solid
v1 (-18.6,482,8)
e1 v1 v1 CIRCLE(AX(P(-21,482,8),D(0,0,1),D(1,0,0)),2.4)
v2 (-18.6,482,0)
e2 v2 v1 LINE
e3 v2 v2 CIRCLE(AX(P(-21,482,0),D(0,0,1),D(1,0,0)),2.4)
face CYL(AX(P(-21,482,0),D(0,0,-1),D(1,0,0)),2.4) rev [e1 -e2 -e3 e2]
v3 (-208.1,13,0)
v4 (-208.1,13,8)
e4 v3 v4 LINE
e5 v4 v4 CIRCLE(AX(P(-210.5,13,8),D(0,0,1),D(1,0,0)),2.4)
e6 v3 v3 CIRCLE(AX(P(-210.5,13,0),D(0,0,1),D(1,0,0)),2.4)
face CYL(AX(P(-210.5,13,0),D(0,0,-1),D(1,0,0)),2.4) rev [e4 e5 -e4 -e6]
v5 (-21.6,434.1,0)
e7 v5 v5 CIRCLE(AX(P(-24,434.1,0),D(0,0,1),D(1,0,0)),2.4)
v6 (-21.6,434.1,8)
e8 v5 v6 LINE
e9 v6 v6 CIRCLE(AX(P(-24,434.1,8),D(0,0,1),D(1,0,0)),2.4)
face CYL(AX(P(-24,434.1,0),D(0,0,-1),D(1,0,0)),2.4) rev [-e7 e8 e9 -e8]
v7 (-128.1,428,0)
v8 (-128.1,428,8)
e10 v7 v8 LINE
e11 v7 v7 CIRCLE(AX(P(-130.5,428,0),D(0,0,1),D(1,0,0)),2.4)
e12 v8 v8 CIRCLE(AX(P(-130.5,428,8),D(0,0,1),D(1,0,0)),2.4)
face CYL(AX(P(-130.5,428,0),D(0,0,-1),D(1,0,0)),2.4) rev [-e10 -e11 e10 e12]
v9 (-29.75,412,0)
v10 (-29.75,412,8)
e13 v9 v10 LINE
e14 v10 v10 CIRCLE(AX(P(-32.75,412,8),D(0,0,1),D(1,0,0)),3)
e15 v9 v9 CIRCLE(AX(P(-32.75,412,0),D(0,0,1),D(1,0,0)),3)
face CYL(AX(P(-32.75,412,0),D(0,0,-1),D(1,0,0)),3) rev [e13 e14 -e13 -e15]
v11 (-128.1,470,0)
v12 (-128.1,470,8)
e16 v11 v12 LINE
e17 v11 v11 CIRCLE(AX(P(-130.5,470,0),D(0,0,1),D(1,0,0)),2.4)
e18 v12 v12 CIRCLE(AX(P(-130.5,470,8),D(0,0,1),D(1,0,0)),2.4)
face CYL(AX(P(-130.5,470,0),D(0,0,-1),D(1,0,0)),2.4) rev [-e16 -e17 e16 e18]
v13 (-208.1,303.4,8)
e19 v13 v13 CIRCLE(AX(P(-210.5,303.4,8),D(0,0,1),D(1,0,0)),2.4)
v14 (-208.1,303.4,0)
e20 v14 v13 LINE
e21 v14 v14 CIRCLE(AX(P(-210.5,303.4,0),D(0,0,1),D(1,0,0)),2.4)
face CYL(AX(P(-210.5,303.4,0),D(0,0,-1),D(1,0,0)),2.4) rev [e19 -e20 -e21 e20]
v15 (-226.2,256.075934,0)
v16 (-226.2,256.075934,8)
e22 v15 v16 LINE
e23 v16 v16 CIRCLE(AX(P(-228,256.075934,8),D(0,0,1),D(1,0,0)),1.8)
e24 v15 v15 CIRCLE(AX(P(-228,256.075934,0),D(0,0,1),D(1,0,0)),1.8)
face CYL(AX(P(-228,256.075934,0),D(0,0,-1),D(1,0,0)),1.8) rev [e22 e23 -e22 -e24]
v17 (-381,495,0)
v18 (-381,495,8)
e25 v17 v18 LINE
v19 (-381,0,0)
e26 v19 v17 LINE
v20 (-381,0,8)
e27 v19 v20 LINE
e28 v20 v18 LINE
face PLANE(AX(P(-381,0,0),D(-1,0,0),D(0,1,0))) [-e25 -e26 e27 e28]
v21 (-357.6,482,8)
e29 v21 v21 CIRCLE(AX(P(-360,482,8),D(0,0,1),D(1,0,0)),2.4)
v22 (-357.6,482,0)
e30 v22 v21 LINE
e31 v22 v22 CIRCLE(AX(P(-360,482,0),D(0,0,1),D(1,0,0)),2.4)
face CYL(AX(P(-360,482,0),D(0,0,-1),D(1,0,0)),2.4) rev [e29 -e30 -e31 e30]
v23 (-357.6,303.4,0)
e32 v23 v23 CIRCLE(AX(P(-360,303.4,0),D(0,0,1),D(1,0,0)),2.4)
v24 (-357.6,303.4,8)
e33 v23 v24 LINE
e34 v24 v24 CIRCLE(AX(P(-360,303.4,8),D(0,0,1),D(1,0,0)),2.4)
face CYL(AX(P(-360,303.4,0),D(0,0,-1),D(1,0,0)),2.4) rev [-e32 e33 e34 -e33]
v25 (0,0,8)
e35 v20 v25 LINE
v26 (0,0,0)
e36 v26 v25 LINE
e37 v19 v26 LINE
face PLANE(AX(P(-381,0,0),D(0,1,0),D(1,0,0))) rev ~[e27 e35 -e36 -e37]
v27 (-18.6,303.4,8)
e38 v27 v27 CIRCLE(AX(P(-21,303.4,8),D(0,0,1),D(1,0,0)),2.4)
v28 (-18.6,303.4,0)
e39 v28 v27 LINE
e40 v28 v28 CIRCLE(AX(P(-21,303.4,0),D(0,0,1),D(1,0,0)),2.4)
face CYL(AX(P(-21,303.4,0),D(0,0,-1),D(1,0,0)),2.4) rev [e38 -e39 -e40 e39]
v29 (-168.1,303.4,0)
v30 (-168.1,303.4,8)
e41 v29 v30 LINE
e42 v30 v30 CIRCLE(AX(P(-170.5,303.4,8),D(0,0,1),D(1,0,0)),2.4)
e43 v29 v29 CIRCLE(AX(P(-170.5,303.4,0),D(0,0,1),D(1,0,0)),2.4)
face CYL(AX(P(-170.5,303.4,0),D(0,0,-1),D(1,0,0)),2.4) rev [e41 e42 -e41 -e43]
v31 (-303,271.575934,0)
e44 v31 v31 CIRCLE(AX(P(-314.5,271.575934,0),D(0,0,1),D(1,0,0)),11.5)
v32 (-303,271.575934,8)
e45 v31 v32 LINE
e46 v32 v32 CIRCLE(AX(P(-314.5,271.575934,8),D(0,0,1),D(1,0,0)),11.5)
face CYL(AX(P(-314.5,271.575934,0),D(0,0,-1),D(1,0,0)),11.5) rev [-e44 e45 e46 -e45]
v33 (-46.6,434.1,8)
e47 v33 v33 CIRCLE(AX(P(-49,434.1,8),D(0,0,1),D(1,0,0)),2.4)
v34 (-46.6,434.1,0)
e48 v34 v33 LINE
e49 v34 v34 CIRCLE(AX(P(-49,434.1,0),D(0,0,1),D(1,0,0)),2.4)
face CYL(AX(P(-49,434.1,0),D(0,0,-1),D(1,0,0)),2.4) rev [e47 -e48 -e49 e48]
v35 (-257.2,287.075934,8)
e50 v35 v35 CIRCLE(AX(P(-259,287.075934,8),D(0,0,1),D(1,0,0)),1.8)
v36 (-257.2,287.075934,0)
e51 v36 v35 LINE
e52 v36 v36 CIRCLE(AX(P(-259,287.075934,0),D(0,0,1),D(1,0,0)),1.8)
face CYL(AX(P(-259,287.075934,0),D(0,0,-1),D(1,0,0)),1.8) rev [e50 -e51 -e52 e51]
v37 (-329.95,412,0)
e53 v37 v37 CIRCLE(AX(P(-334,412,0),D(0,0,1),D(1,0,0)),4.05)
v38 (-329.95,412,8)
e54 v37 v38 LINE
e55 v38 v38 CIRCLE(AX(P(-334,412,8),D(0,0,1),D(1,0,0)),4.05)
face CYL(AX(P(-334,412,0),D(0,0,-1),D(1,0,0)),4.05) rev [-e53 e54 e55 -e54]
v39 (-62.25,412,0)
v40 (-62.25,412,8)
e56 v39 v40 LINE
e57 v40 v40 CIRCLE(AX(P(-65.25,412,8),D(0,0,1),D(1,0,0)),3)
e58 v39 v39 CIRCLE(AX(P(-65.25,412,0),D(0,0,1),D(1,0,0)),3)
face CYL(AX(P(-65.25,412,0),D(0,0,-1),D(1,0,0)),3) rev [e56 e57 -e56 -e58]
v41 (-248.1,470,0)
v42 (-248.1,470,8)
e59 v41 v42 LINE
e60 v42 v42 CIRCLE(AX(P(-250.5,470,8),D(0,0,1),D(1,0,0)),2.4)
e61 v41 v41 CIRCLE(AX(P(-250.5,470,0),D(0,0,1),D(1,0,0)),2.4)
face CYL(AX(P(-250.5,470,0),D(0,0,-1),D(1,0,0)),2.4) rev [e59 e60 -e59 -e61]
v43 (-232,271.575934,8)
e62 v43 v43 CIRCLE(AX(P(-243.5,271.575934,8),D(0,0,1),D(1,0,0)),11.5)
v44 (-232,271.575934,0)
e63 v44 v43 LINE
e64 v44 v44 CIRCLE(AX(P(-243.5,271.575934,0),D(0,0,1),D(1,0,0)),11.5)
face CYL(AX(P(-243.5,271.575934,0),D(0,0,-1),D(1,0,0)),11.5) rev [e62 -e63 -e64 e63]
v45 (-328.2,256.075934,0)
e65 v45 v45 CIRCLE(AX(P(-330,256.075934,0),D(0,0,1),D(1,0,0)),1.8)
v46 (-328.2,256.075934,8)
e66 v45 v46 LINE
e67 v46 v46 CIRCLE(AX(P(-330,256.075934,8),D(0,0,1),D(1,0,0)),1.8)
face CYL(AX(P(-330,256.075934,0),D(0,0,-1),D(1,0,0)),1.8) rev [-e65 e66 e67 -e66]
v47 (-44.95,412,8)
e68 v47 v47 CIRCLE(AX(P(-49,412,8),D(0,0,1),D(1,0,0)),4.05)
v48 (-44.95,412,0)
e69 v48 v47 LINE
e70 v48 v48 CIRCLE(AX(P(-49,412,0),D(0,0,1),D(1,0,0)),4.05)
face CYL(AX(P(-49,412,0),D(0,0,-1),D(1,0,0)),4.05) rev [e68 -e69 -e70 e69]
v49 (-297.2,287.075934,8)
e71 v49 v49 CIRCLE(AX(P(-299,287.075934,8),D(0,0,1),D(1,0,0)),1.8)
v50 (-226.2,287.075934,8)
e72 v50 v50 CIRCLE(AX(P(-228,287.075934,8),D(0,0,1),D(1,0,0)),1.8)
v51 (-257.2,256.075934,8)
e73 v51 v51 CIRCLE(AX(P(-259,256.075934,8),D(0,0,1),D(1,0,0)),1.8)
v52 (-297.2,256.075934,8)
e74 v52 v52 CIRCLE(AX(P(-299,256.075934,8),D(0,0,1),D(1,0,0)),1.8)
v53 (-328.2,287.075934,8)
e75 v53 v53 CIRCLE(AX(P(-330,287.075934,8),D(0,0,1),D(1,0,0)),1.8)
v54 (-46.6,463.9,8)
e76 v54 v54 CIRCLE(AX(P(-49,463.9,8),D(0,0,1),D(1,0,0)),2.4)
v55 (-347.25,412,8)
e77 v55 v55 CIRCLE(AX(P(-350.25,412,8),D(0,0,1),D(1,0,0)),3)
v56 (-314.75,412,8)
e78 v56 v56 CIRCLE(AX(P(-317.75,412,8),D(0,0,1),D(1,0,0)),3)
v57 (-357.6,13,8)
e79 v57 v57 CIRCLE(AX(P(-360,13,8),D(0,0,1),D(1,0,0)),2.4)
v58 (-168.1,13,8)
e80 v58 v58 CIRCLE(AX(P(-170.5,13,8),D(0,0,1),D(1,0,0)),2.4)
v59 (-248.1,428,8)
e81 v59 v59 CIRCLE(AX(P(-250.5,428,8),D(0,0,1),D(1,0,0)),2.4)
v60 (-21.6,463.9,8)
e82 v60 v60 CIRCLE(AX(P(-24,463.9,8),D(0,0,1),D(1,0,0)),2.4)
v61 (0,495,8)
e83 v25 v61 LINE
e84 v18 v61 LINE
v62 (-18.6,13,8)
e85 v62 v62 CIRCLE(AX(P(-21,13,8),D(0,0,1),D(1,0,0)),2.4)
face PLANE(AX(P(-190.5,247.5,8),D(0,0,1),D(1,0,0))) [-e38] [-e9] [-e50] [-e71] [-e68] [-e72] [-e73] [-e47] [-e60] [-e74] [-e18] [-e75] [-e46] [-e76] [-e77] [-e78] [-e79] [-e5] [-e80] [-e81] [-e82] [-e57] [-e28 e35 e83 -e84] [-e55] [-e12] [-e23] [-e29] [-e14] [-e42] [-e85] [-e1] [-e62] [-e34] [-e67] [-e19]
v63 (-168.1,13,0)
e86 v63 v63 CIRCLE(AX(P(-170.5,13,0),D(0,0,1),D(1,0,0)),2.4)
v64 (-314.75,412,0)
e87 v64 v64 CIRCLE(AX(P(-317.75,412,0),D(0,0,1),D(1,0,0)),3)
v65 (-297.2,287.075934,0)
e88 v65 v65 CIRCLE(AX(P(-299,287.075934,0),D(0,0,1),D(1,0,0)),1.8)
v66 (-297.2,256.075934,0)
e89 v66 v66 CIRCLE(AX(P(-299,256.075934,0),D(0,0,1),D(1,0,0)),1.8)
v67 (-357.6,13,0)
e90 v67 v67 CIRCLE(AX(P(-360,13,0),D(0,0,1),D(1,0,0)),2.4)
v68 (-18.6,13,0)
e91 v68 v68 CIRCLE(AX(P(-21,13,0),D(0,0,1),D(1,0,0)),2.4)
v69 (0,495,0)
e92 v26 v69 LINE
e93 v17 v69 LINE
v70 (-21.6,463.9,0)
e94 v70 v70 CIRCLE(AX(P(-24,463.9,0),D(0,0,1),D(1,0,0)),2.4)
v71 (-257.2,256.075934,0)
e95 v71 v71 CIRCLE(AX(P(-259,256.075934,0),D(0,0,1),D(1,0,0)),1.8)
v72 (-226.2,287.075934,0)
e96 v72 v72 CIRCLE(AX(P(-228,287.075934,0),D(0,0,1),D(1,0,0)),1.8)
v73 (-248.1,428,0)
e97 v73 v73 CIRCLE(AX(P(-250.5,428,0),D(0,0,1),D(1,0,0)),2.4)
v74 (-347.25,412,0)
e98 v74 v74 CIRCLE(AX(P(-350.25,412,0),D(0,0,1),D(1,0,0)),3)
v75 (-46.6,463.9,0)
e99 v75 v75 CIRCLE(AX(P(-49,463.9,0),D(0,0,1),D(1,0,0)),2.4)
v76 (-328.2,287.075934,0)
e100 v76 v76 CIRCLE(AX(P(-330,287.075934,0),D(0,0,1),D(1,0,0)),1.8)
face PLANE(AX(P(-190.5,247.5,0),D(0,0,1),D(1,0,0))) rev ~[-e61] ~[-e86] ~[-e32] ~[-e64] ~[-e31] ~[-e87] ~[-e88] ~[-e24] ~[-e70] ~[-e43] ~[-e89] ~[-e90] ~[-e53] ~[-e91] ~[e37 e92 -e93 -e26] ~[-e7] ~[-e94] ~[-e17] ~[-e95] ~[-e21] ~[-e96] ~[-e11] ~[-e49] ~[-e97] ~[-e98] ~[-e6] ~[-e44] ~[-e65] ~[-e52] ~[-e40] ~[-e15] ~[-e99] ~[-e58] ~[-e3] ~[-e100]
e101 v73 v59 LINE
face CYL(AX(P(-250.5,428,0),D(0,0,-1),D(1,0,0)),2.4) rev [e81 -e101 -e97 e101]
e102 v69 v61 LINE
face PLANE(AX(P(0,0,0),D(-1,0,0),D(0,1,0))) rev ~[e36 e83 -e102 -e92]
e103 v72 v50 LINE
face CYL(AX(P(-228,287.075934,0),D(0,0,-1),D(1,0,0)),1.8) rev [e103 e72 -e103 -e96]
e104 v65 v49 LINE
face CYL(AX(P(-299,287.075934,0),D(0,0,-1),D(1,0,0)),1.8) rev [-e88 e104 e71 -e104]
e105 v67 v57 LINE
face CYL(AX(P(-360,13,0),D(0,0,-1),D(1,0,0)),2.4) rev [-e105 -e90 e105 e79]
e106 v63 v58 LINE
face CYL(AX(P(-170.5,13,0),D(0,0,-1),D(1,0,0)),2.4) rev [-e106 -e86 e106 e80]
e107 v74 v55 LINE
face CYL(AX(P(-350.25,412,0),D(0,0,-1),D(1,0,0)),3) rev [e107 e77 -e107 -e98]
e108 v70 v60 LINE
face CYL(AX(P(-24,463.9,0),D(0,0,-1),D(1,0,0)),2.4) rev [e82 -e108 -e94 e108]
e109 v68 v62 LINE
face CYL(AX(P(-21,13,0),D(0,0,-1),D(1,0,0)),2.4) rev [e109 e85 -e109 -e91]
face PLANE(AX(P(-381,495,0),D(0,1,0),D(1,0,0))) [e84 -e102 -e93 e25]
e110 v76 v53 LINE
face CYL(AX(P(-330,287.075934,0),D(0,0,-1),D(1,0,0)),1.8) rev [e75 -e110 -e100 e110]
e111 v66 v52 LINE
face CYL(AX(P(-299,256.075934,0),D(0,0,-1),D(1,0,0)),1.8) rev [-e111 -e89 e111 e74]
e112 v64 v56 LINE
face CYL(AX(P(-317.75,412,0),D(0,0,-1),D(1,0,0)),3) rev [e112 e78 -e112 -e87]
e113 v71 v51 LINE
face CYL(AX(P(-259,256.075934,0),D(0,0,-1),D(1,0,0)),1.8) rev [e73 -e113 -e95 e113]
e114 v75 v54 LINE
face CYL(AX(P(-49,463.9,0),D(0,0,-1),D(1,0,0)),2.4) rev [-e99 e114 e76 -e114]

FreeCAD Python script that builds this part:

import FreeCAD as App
import Part
import Sketcher

V = App.Vector

doc = App.newDocument("Part")
body = doc.addObject("PartDesign::Body", "Body")

sketch1 = body.newObject("Sketcher::SketchObject", "Sketch")
sketch1.AttachmentSupport = (doc.getObject("XY_Plane"), [""])
sketch1.MapMode = "FlatFace"
sketch1.addGeometry([
    Part.LineSegment(V(-381, 495, 0), V(-381, 0, 0)),
    Part.LineSegment(V(-381, 0, 0), V(0, 0, 0)),
    Part.LineSegment(V(0, 0, 0), V(0, 495, 0)),
    Part.LineSegment(V(0, 495, 0), V(-381, 495, 0)),
    Part.Circle(V(-360, 13, 0), V(0, 0, 1), 2.4),
    Part.Circle(V(-210.5, 13, 0), V(0, 0, 1), 2.4),
    Part.Circle(V(-170.5, 13, 0), V(0, 0, 1), 2.4),
    Part.Circle(V(-21, 13, 0), V(0, 0, 1), 2.4),
    Part.Circle(V(-330, 256.1, 0), V(0, 0, 1), 1.8),
    Part.Circle(V(-360, 303.4, 0), V(0, 0, 1), 2.4),
    Part.Circle(V(-330, 287.1, 0), V(0, 0, 1), 1.8),
    Part.Circle(V(-299, 256.1, 0), V(0, 0, 1), 1.8),
    Part.Circle(V(-314.5, 271.6, 0), V(0, 0, 1), 11.5),
    Part.Circle(V(-299, 287.1, 0), V(0, 0, 1), 1.8),
    Part.Circle(V(-259, 256.1, 0), V(0, 0, 1), 1.8),
    Part.Circle(V(-243.5, 271.6, 0), V(0, 0, 1), 11.5),
    Part.Circle(V(-259, 287.1, 0), V(0, 0, 1), 1.8),
    Part.Circle(V(-228, 256.1, 0), V(0, 0, 1), 1.8),
    Part.Circle(V(-228, 287.1, 0), V(0, 0, 1), 1.8),
    Part.Circle(V(-210.5, 303.4, 0), V(0, 0, 1), 2.4),
    Part.Circle(V(-350.2, 412, 0), V(0, 0, 1), 3),
    Part.Circle(V(-334, 412, 0), V(0, 0, 1), 4),
    Part.Circle(V(-317.8, 412, 0), V(0, 0, 1), 3),
    Part.Circle(V(-360, 482, 0), V(0, 0, 1), 2.4),
    Part.Circle(V(-250.5, 428, 0), V(0, 0, 1), 2.4),
    Part.Circle(V(-250.5, 470, 0), V(0, 0, 1), 2.4),
    Part.Circle(V(-170.5, 303.4, 0), V(0, 0, 1), 2.4),
    Part.Circle(V(-21, 303.4, 0), V(0, 0, 1), 2.4),
    Part.Circle(V(-130.5, 428, 0), V(0, 0, 1), 2.4),
    Part.Circle(V(-130.5, 470, 0), V(0, 0, 1), 2.4),
    Part.Circle(V(-65.2, 412, 0), V(0, 0, 1), 3),
    Part.Circle(V(-49, 412, 0), V(0, 0, 1), 4),
    Part.Circle(V(-32.8, 412, 0), V(0, 0, 1), 3),
    Part.Circle(V(-49, 434.1, 0), V(0, 0, 1), 2.4),
    Part.Circle(V(-24, 434.1, 0), V(0, 0, 1), 2.4),
    Part.Circle(V(-49, 463.9, 0), V(0, 0, 1), 2.4),
    Part.Circle(V(-24, 463.9, 0), V(0, 0, 1), 2.4),
    Part.Circle(V(-21, 482, 0), V(0, 0, 1), 2.4),
], False)
sketch1.addConstraint([
    Sketcher.Constraint("Coincident", 0, 2, 1, 1),
    Sketcher.Constraint("Coincident", 1, 2, 2, 1),
    Sketcher.Constraint("Coincident", 2, 2, 3, 1),
    Sketcher.Constraint("Coincident", 3, 2, 0, 1),
    Sketcher.Constraint("Vertical", 0),
    Sketcher.Constraint("Horizontal", 1),
    Sketcher.Constraint("Vertical", 2),
    Sketcher.Constraint("Horizontal", 3),
    Sketcher.Constraint("Coincident", 1, 2, -1, 1),
    Sketcher.Constraint("Equal", 4, 5),
    Sketcher.Constraint("Equal", 5, 6),
    Sketcher.Constraint("Equal", 6, 7),
    Sketcher.Constraint("Equal", 7, 9),
    Sketcher.Constraint("Equal", 8, 10),
    Sketcher.Constraint("Equal", 10, 11),
    Sketcher.Constraint("Equal", 11, 13),
    Sketcher.Constraint("Equal", 13, 14),
    Sketcher.Constraint("Equal", 12, 15),
    Sketcher.Constraint("Equal", 14, 16),
    Sketcher.Constraint("Equal", 16, 17),
    Sketcher.Constraint("Equal", 17, 18),
    Sketcher.Constraint("Equal", 9, 19),
    Sketcher.Constraint("Equal", 20, 22),
    Sketcher.Constraint("Equal", 19, 23),
    Sketcher.Constraint("Equal", 23, 24),
    Sketcher.Constraint("Equal", 24, 25),
    Sketcher.Constraint("Equal", 25, 26),
    Sketcher.Constraint("Equal", 26, 27),
    Sketcher.Constraint("Equal", 27, 28),
    Sketcher.Constraint("Equal", 28, 29),
    Sketcher.Constraint("Equal", 22, 30),
    Sketcher.Constraint("Equal", 21, 31),
    Sketcher.Constraint("Equal", 30, 32),
    Sketcher.Constraint("Equal", 29, 33),
    Sketcher.Constraint("Equal", 33, 34),
    Sketcher.Constraint("Equal", 34, 35),
    Sketcher.Constraint("Equal", 35, 36),
    Sketcher.Constraint("Equal", 36, 37),
    Sketcher.Constraint("Horizontal", 4, 3, 5, 3),
    Sketcher.Constraint("Horizontal", 5, 3, 6, 3),
    Sketcher.Constraint("Horizontal", 6, 3, 7, 3),
    Sketcher.Constraint("Horizontal", 8, 3, 11, 3),
    Sketcher.Constraint("Horizontal", 10, 3, 13, 3),
    Sketcher.Constraint("Horizontal", 11, 3, 14, 3),
    Sketcher.Constraint("Horizontal", 12, 3, 15, 3),
    Sketcher.Constraint("Horizontal", 13, 3, 16, 3),
    Sketcher.Constraint("Horizontal", 14, 3, 17, 3),
    Sketcher.Constraint("Horizontal", 16, 3, 18, 3),
    Sketcher.Constraint("Horizontal", 9, 3, 19, 3),
    Sketcher.Constraint("Horizontal", 20, 3, 21, 3),
    Sketcher.Constraint("Horizontal", 21, 3, 22, 3),
    Sketcher.Constraint("Horizontal", 19, 3, 26, 3),
    Sketcher.Constraint("Horizontal", 26, 3, 27, 3),
    Sketcher.Constraint("Horizontal", 24, 3, 28, 3),
    Sketcher.Constraint("Horizontal", 25, 3, 29, 3),
    Sketcher.Constraint("Horizontal", 22, 3, 30, 3),
    Sketcher.Constraint("Horizontal", 30, 3, 31, 3),
    Sketcher.Constraint("Horizontal", 31, 3, 32, 3),
    Sketcher.Constraint("Horizontal", 33, 3, 34, 3),
    Sketcher.Constraint("Horizontal", 35, 3, 36, 3),
    Sketcher.Constraint("Horizontal", 23, 3, 37, 3),
    Sketcher.Constraint("Vertical", 4, 3, 9, 3),
    Sketcher.Constraint("Vertical", 8, 3, 10, 3),
    Sketcher.Constraint("Vertical", 11, 3, 13, 3),
    Sketcher.Constraint("Vertical", 14, 3, 16, 3),
    Sketcher.Constraint("Vertical", 17, 3, 18, 3),
    Sketcher.Constraint("Vertical", 5, 3, 19, 3),
    Sketcher.Constraint("Vertical", 9, 3, 23, 3),
    Sketcher.Constraint("Vertical", 24, 3, 25, 3),
    Sketcher.Constraint("Vertical", 6, 3, 26, 3),
    Sketcher.Constraint("Vertical", 7, 3, 27, 3),
    Sketcher.Constraint("Vertical", 28, 3, 29, 3),
    Sketcher.Constraint("Vertical", 31, 3, 33, 3),
    Sketcher.Constraint("Vertical", 33, 3, 35, 3),
    Sketcher.Constraint("Vertical", 34, 3, 36, 3),
    Sketcher.Constraint("Vertical", 27, 3, 37, 3),
    Sketcher.Constraint("Diameter", 12, 23.0),
    Sketcher.Constraint("Diameter", 20, 6.0),
    Sketcher.Constraint("Diameter", 4, 4.8),
    Sketcher.Constraint("Diameter", 8, 3.6),
    Sketcher.Constraint("Diameter", 21, 8.1),
    Sketcher.Constraint("DistanceX", 1, 1, 1, 2, 381.0),
    Sketcher.Constraint("DistanceY", 0, 2, 0, 1, 495.0),
    Sketcher.Constraint("DistanceX", 4, 3, -1, 1, 360.0),
    Sketcher.Constraint("DistanceY", -1, 1, 4, 3, 13.0),
    Sketcher.Constraint("DistanceX", 7, 3, -1, 1, 21.0),
    Sketcher.Constraint("DistanceX", 8, 3, -1, 1, 330.0),
    Sketcher.Constraint("DistanceX", 11, 3, -1, 1, 299.0),
    Sketcher.Constraint("DistanceX", 14, 3, -1, 1, 259.0),
    Sketcher.Constraint("DistanceX", 17, 3, -1, 1, 228.0),
    Sketcher.Constraint("DistanceY", -1, 1, 20, 3, 412.0),
    Sketcher.Constraint("DistanceX", 21, 3, -1, 1, 334.0),
    Sketcher.Constraint("DistanceY", -1, 1, 23, 3, 482.0),
    Sketcher.Constraint("DistanceY", -1, 1, 24, 3, 428.0),
    Sketcher.Constraint("DistanceY", -1, 1, 25, 3, 470.0),
    Sketcher.Constraint("DistanceX", 31, 3, -1, 1, 49.0),
    Sketcher.Constraint("DistanceX", 34, 3, -1, 1, 24.0),
    Sketcher.Constraint("DistanceX", 5, 3, 6, 3, 40.0),
    Sketcher.Constraint("DistanceY", 8, 3, 10, 3, 31.0),
    Sketcher.Constraint("DistanceX", 12, 3, 15, 3, 71.0),
    Sketcher.Constraint("DistanceX", 15, 3, 19, 3, 33.0),
    Sketcher.Constraint("DistanceX", 24, 3, 19, 3, 40.0),
    Sketcher.Constraint("DistanceX", 24, 3, 28, 3, 120.0),
    Sketcher.Constraint("DistanceX", 5, 3, -1, 1, 210.5),
    Sketcher.Constraint("DistanceY", -1, 1, 9, 3, 303.4),
    Sketcher.Constraint("DistanceY", -1, 1, 33, 3, 434.1),
    Sketcher.Constraint("DistanceY", -1, 1, 35, 3, 463.9),
    Sketcher.Constraint("DistanceY", 8, 3, 12, 3, 15.5),
    Sketcher.Constraint("DistanceX", 20, 3, 22, 3, 32.5),
    Sketcher.Constraint("DistanceX", 30, 3, 32, 3, 32.5),
    Sketcher.Constraint("DistanceX", 20, 3, -1, 1, 350.25),
    Sketcher.Constraint("DistanceX", 30, 3, -1, 1, 65.25),
    Sketcher.Constraint("DistanceY", -1, 1, 8, 3, 256.075934),
])
pad1 = body.newObject("PartDesign::Pad", "Pad")
pad1.Profile = sketch1
pad1.Length = 8

doc.recompute()
